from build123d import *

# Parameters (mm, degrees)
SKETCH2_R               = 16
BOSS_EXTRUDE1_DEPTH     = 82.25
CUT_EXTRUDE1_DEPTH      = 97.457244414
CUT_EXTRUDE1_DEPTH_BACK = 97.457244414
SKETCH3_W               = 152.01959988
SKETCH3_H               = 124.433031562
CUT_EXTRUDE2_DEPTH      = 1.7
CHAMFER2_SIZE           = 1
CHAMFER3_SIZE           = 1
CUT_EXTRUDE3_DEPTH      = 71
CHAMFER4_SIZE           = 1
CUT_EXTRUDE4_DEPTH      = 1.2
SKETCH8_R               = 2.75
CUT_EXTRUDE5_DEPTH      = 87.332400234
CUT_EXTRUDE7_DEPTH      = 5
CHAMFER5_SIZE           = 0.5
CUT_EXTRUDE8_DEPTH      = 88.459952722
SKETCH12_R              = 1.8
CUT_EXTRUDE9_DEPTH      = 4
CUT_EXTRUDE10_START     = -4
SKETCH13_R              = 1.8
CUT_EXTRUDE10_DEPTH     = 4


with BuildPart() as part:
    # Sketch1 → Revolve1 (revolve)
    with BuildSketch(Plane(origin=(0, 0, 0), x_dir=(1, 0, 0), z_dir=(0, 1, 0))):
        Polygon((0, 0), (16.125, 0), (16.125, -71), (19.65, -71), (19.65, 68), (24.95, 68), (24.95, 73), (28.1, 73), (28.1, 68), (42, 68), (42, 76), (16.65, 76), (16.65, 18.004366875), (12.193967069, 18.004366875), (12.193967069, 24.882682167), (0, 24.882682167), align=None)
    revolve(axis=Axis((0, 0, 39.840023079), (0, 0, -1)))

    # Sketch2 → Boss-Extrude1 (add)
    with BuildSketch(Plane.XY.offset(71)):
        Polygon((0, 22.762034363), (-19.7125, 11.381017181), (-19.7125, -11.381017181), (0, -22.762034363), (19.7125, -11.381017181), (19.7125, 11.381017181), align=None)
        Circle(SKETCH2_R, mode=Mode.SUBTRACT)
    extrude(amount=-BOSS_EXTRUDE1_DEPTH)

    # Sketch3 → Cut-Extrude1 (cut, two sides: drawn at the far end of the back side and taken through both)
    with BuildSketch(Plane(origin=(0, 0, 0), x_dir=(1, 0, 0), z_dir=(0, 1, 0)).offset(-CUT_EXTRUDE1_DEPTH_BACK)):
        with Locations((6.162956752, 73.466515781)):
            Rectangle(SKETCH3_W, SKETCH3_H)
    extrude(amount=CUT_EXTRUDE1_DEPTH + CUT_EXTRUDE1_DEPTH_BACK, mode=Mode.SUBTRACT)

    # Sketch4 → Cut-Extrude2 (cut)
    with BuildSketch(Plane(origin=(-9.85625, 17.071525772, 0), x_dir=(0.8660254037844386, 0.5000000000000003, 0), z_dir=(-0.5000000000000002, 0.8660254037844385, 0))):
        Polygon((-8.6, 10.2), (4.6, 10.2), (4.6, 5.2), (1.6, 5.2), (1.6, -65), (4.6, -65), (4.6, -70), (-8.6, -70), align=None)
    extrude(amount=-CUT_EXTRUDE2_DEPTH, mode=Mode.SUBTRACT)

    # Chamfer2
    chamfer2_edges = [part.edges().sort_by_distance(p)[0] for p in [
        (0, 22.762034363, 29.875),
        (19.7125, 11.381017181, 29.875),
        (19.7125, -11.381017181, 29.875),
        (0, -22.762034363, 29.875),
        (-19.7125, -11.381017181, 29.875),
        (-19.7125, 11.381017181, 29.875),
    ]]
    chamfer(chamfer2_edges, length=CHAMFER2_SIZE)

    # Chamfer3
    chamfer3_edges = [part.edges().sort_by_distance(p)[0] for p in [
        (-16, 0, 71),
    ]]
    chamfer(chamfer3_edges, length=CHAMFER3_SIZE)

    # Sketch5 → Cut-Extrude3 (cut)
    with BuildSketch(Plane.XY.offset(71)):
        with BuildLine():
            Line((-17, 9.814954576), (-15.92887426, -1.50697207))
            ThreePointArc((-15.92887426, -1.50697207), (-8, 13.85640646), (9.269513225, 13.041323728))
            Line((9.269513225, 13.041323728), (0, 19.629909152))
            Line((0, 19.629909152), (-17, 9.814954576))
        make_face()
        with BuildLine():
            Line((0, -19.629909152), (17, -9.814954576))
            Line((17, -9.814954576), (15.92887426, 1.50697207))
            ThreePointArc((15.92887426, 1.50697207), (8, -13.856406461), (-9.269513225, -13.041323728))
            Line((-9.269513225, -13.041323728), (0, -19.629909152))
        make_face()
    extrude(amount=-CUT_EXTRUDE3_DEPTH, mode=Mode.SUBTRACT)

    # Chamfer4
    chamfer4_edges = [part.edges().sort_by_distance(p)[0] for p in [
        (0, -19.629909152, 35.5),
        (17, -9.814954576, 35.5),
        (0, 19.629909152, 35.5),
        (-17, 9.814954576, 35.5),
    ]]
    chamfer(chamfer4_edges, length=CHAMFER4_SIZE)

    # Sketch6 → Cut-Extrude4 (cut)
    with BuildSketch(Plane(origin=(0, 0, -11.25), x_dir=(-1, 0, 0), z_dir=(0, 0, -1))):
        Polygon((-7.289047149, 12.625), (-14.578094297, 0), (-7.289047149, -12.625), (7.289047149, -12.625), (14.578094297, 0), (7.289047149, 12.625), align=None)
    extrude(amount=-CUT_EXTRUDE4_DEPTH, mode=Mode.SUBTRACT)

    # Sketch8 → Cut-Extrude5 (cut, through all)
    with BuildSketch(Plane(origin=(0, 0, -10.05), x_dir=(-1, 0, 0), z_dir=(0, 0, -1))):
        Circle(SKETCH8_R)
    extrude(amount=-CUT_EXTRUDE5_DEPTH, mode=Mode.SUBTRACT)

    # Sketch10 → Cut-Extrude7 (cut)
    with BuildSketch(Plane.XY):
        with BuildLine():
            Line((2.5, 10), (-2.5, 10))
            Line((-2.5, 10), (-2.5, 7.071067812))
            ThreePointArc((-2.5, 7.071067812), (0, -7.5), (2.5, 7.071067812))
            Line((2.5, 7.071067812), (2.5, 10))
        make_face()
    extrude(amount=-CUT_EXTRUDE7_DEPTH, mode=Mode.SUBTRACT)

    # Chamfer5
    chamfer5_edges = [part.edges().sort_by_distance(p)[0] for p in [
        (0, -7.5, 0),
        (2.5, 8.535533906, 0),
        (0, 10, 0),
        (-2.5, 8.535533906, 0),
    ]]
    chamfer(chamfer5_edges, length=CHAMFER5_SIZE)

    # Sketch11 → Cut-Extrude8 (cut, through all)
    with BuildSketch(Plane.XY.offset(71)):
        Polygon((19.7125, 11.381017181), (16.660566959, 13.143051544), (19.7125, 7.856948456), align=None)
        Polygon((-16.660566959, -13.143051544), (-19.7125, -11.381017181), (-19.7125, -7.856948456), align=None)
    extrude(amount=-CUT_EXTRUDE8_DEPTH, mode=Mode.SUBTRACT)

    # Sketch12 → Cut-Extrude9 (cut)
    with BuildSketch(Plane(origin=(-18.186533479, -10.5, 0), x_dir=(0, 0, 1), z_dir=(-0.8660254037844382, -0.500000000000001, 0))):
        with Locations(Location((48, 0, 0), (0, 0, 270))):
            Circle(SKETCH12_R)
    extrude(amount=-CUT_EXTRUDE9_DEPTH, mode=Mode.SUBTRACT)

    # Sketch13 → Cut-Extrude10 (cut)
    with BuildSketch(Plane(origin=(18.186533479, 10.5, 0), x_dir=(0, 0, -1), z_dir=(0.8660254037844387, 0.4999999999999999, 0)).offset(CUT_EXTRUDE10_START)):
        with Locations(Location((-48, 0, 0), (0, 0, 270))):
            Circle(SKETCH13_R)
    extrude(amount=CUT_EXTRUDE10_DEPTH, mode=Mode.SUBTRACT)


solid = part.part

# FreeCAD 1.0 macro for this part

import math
import FreeCAD as App
import Part
import Sketcher

V = App.Vector
Q = App.Units.Quantity


def edges_at(feature, points):
    """Names of the edges that pass closest to the given points."""
    edges = feature.Shape.Edges
    near = lambda p: min(range(len(edges)), key=lambda i: edges[i].distToShape(Part.Vertex(*p))[0])
    return sorted({f"Edge{near(p) + 1}" for p in points})

doc = App.newDocument("Part")
body = doc.addObject("PartDesign::Body", "Body")

sketch1 = doc.addObject("Sketcher::SketchObject", "Sketch")
body.addObject(sketch1)
sketch1.AttachmentSupport = (doc.XZ_Plane, [""])
sketch1.MapMode = "FlatFace"
sketch1.addGeometry([
    Part.LineSegment(V(0, 0, 0), V(16.1, 0, 0)),
    Part.LineSegment(V(16.1, 0, 0), V(16.1, 71, 0)),
    Part.LineSegment(V(16.1, 71, 0), V(19.6, 71, 0)),
    Part.LineSegment(V(19.6, 71, 0), V(19.6, -68, 0)),
    Part.LineSegment(V(19.6, -68, 0), V(24.9, -68, 0)),
    Part.LineSegment(V(24.9, -68, 0), V(24.9, -73, 0)),
    Part.LineSegment(V(24.9, -73, 0), V(28.1, -73, 0)),
    Part.LineSegment(V(28.1, -73, 0), V(28.1, -68, 0)),
    Part.LineSegment(V(28.1, -68, 0), V(42, -68, 0)),
    Part.LineSegment(V(42, -68, 0), V(42, -76, 0)),
    Part.LineSegment(V(42, -76, 0), V(16.6, -76, 0)),
    Part.LineSegment(V(16.6, -76, 0), V(16.6, -18, 0)),
    Part.LineSegment(V(16.6, -18, 0), V(12.2, -18, 0)),
    Part.LineSegment(V(12.2, -18, 0), V(12.2, -24.9, 0)),
    Part.LineSegment(V(12.2, -24.9, 0), V(0, -24.9, 0)),
    Part.LineSegment(V(0, -24.9, 0), V(0, 0, 0)),
], False)
sketch1.addConstraint([
    Sketcher.Constraint("Coincident", 0, 2, 1, 1),
    Sketcher.Constraint("Coincident", 1, 2, 2, 1),
    Sketcher.Constraint("Coincident", 2, 2, 3, 1),
    Sketcher.Constraint("Coincident", 3, 2, 4, 1),
    Sketcher.Constraint("Coincident", 4, 2, 5, 1),
    Sketcher.Constraint("Coincident", 5, 2, 6, 1),
    Sketcher.Constraint("Coincident", 6, 2, 7, 1),
    Sketcher.Constraint("Coincident", 7, 2, 8, 1),
    Sketcher.Constraint("Coincident", 8, 2, 9, 1),
    Sketcher.Constraint("Coincident", 9, 2, 10, 1),
    Sketcher.Constraint("Coincident", 10, 2, 11, 1),
    Sketcher.Constraint("Coincident", 11, 2, 12, 1),
    Sketcher.Constraint("Coincident", 12, 2, 13, 1),
    Sketcher.Constraint("Coincident", 13, 2, 14, 1),
    Sketcher.Constraint("Coincident", 14, 2, 15, 1),
    Sketcher.Constraint("Coincident", 15, 2, 0, 1),
    Sketcher.Constraint("Horizontal", 0),
    Sketcher.Constraint("Vertical", 1),
    Sketcher.Constraint("Horizontal", 2),
    Sketcher.Constraint("Vertical", 3),
    Sketcher.Constraint("Horizontal", 4),
    Sketcher.Constraint("Vertical", 5),
    Sketcher.Constraint("Horizontal", 6),
    Sketcher.Constraint("Vertical", 7),
    Sketcher.Constraint("Horizontal", 8),
    Sketcher.Constraint("Vertical", 9),
    Sketcher.Constraint("Horizontal", 10),
    Sketcher.Constraint("Vertical", 11),
    Sketcher.Constraint("Horizontal", 12),
    Sketcher.Constraint("Vertical", 13),
    Sketcher.Constraint("Horizontal", 14),
    Sketcher.Constraint("Vertical", 15),
    Sketcher.Constraint("Coincident", 15, 2, -1, 1),
    Sketcher.Constraint("Horizontal", 4, 2, 7, 2),
    Sketcher.Constraint("DistanceY", 1, 1, 1, 2, Q("71 mm")),
    Sketcher.Constraint("DistanceY", 3, 2, 3, 1, Q("139 mm")),
    Sketcher.Constraint("DistanceY", 5, 2, 5, 1, Q("5 mm")),
    Sketcher.Constraint("DistanceY", 9, 2, 9, 1, Q("8 mm")),
    Sketcher.Constraint("DistanceX", 4, 1, 4, 2, Q("5.3 mm")),
    Sketcher.Constraint("DistanceX", 8, 1, 8, 2, Q("13.9 mm")),
    Sketcher.Constraint("DistanceX", -1, 1, 8, 2, Q("42 mm")),
    Sketcher.Constraint("DistanceX", 10, 2, 3, 2, Q("3 mm")),
    Sketcher.Constraint("DistanceX", 6, 1, 6, 2, Q("3.15 mm")),
    Sketcher.Constraint("DistanceX", 0, 1, 0, 2, Q("16.125 mm")),
    Sketcher.Constraint("DistanceX", 12, 2, 12, 1, Q("4.456033 mm")),
    Sketcher.Constraint("DistanceY", 11, 1, 11, 2, Q("57.995633 mm")),
    Sketcher.Constraint("DistanceY", 13, 2, 13, 1, Q("6.878315 mm")),
])
revolution = doc.addObject("PartDesign::Revolution", "Revolution")
body.addObject(revolution)
revolution.Profile = sketch1
revolution.ReferenceAxis = (sketch1, ["V_Axis"])
revolution.Angle = 360

sketch2 = doc.addObject("Sketcher::SketchObject", "Sketch001")
body.addObject(sketch2)
sketch2.AttachmentSupport = (doc.XY_Plane, [""])
sketch2.MapMode = "FlatFace"
sketch2.AttachmentOffset = App.Placement(V(0, 0, 71), App.Rotation())
sketch2.addGeometry([
    Part.LineSegment(V(0, 23, 0), V(-20, 11, 0)),
    Part.LineSegment(V(-20, 11, 0), V(-20, -11, 0)),
    Part.LineSegment(V(-20, -11, 0), V(0, -23, 0)),
    Part.LineSegment(V(0, -23, 0), V(20, -11, 0)),
    Part.LineSegment(V(20, -11, 0), V(20, 11, 0)),
    Part.LineSegment(V(20, 11, 0), V(0, 23, 0)),
    Part.Circle(V(0, 0, 0), V(0, 0, 1), 16),
], False)
sketch2.addConstraint([
    Sketcher.Constraint("Coincident", 0, 2, 1, 1),
    Sketcher.Constraint("Coincident", 1, 2, 2, 1),
    Sketcher.Constraint("Coincident", 2, 2, 3, 1),
    Sketcher.Constraint("Coincident", 3, 2, 4, 1),
    Sketcher.Constraint("Coincident", 4, 2, 5, 1),
    Sketcher.Constraint("Coincident", 5, 2, 0, 1),
    Sketcher.Constraint("Vertical", 1),
    Sketcher.Constraint("Vertical", 4),
    Sketcher.Constraint("Coincident", 6, 3, -1, 1),
    Sketcher.Constraint("Symmetric", 0, 2, 3, 2, -1, 1),
    Sketcher.Constraint("Symmetric", 2, 2, 5, 2, -1, 1),
    Sketcher.Constraint("PointOnObject", 2, 2, -2),
    Sketcher.Constraint("Parallel", 2, 5),
    Sketcher.Constraint("Horizontal", 1, 2, 3, 2),
    Sketcher.Constraint("Diameter", 6, Q("32 mm")),
    Sketcher.Constraint("Angle", 0, Q("-150 deg")),
    Sketcher.Constraint("DistanceX", 1, 2, 3, 2, Q("39.425 mm")),
    Sketcher.Constraint("DistanceY", 1, 2, 1, 1, Q("22.762034 mm")),
])
pad1 = doc.addObject("PartDesign::Pad", "Pad")
body.addObject(pad1)
pad1.Profile = sketch2
pad1.Length = 82.25
pad1.Reversed = True

sketch3 = doc.addObject("Sketcher::SketchObject", "Sketch002")
body.addObject(sketch3)
sketch3.AttachmentSupport = (doc.XZ_Plane, [""])
sketch3.MapMode = "FlatFace"
sketch3.addGeometry([
    Part.LineSegment(V(-70, -136, 0), V(-70, -11, 0)),
    Part.LineSegment(V(-70, -11, 0), V(82, -11, 0)),
    Part.LineSegment(V(82, -11, 0), V(82, -136, 0)),
    Part.LineSegment(V(82, -136, 0), V(-70, -136, 0)),
], False)
sketch3.addConstraint([
    Sketcher.Constraint("Coincident", 0, 2, 1, 1),
    Sketcher.Constraint("Coincident", 1, 2, 2, 1),
    Sketcher.Constraint("Coincident", 2, 2, 3, 1),
    Sketcher.Constraint("Coincident", 3, 2, 0, 1),
    Sketcher.Constraint("Vertical", 0),
    Sketcher.Constraint("Horizontal", 1),
    Sketcher.Constraint("Vertical", 2),
    Sketcher.Constraint("Horizontal", 3),
    Sketcher.Constraint("DistanceY", 0, 2, -1, 1, Q("11.25 mm")),
    Sketcher.Constraint("DistanceX", 1, 1, 1, 2, Q("152.0196 mm")),
    Sketcher.Constraint("DistanceY", 0, 1, 0, 2, Q("124.433032 mm")),
    Sketcher.Constraint("DistanceX", 0, 2, -1, 1, Q("69.846843 mm")),
])
pocket1 = doc.addObject("PartDesign::Pocket", "Pocket")
body.addObject(pocket1)
pocket1.Profile = sketch3
pocket1.Type = "ThroughAll"
pocket1.Midplane = True

sketch4 = doc.addObject("Sketcher::SketchObject", "Sketch003")
body.addObject(sketch4)
sketch4.Placement = App.Placement(V(-9.85625, 17.071526, 0), App.Rotation(V(0.866025404, 0.5, 0), V(0, 0, -1), V(-0.5, 0.866025404, 0), "ZXY"))
sketch4.addGeometry([
    Part.LineSegment(V(4.6, 10.2, 0), V(-8.6, 10.2, 0)),
    Part.LineSegment(V(-8.6, 10.2, 0), V(-8.6, -70, 0)),
    Part.LineSegment(V(-8.6, -70, 0), V(4.6, -70, 0)),
    Part.LineSegment(V(4.6, -70, 0), V(4.6, -65, 0)),
    Part.LineSegment(V(4.6, -65, 0), V(1.6, -65, 0)),
    Part.LineSegment(V(1.6, -65, 0), V(1.6, 5.2, 0)),
    Part.LineSegment(V(1.6, 5.2, 0), V(4.6, 5.2, 0)),
    Part.LineSegment(V(4.6, 5.2, 0), V(4.6, 10.2, 0)),
], False)
sketch4.addConstraint([
    Sketcher.Constraint("Coincident", 0, 2, 1, 1),
    Sketcher.Constraint("Coincident", 1, 2, 2, 1),
    Sketcher.Constraint("Coincident", 2, 2, 3, 1),
    Sketcher.Constraint("Coincident", 3, 2, 4, 1),
    Sketcher.Constraint("Coincident", 4, 2, 5, 1),
    Sketcher.Constraint("Coincident", 5, 2, 6, 1),
    Sketcher.Constraint("Coincident", 6, 2, 7, 1),
    Sketcher.Constraint("Coincident", 7, 2, 0, 1),
    Sketcher.Constraint("Horizontal", 0),
    Sketcher.Constraint("Vertical", 1),
    Sketcher.Constraint("Horizontal", 2),
    Sketcher.Constraint("Vertical", 3),
    Sketcher.Constraint("Horizontal", 4),
    Sketcher.Constraint("Vertical", 5),
    Sketcher.Constraint("Horizontal", 6),
    Sketcher.Constraint("Vertical", 7),
    Sketcher.Constraint("Vertical", 3, 2, 6, 2),
    Sketcher.Constraint("Equal", 3, 7),
    Sketcher.Constraint("DistanceX", 4, 2, 4, 1, Q("3 mm")),
    Sketcher.Constraint("DistanceY", 3, 1, 3, 2, Q("5 mm")),
    Sketcher.Constraint("DistanceX", 0, 2, 0, 1, Q("13.2 mm")),
    Sketcher.Constraint("DistanceY", 1, 2, 1, 1, Q("80.2 mm")),
    Sketcher.Constraint("DistanceY", 1, 2, -1, 1, Q("70 mm")),
    Sketcher.Constraint("DistanceX", 0, 2, -1, 1, Q("8.6 mm")),
])
pocket2 = doc.addObject("PartDesign::Pocket", "Pocket001")
body.addObject(pocket2)
pocket2.Profile = sketch4
pocket2.Length = 1.7
doc.recompute()

chamfer = doc.addObject("PartDesign::Chamfer", "Chamfer")
body.addObject(chamfer)
chamfer.Base = (pocket2, edges_at(pocket2, [
    (0, 22.762, 29.875),
    (19.712, 11.381, 29.875),
    (19.712, -11.381, 29.875),
    (0, -22.762, 29.875),
    (-19.712, -11.381, 29.875),
    (-19.712, 11.381, 29.875),
]))
chamfer.Size = 1
doc.recompute()

chamfer2 = doc.addObject("PartDesign::Chamfer", "Chamfer001")
body.addObject(chamfer2)
chamfer2.Base = (chamfer, edges_at(chamfer, [(-16, 0, 71)]))
chamfer2.Size = 1

sketch5 = doc.addObject("Sketcher::SketchObject", "Sketch004")
body.addObject(sketch5)
sketch5.AttachmentSupport = (doc.XY_Plane, [""])
sketch5.MapMode = "FlatFace"
sketch5.AttachmentOffset = App.Placement(V(0, 0, 71), App.Rotation())
sketch5.addGeometry([
    Part.LineSegment(V(-17, 10, 0), V(-16, -2, 0)),
    Part.ArcOfCircle(Part.Circle(V(0, 0, 0), V(0, 0, 1), 16), math.radians(55), math.radians(185)),
    Part.LineSegment(V(9, 13, 0), V(0, 20, 0)),
    Part.LineSegment(V(0, 20, 0), V(-17, 10, 0)),
    Part.LineSegment(V(0, -20, 0), V(17, -10, 0)),
    Part.LineSegment(V(17, -10, 0), V(16, 2, 0)),
    Part.ArcOfCircle(Part.Circle(V(0, 0, 0), V(0, 0, 1), 16), math.radians(-125), math.radians(5)),
    Part.LineSegment(V(-9, -13, 0), V(0, -20, 0)),
], False)
sketch5.addConstraint([
    Sketcher.Constraint("Tangent", 0, 2, 1, 2),
    Sketcher.Constraint("Tangent", 1, 1, 2, 1),
    Sketcher.Constraint("Coincident", 2, 2, 3, 1),
    Sketcher.Constraint("Coincident", 3, 2, 0, 1),
    Sketcher.Constraint("Coincident", 4, 2, 5, 1),
    Sketcher.Constraint("Tangent", 5, 2, 6, 2),
    Sketcher.Constraint("Tangent", 6, 1, 7, 1),
    Sketcher.Constraint("Coincident", 7, 2, 4, 1),
    Sketcher.Constraint("Coincident", 1, 3, -1, 1),
    Sketcher.Constraint("Coincident", 6, 3, -1, 1),
    Sketcher.Constraint("Equal", 1, 6),
    Sketcher.Constraint("Symmetric", 3, 2, 4, 2, -1, 1),
    Sketcher.Constraint("Symmetric", 2, 2, 7, 2, -1, 1),
    Sketcher.Constraint("PointOnObject", 2, 2, -2),
    Sketcher.Constraint("Equal", 0, 2),
    Sketcher.Constraint("Radius", 1, Q("16 mm")),
    Sketcher.Constraint("Angle", 3, Q("-150 deg")),
    Sketcher.Constraint("DistanceX", 3, 2, -1, 1, Q("17 mm")),
])
pocket3 = doc.addObject("PartDesign::Pocket", "Pocket002")
body.addObject(pocket3)
pocket3.Profile = sketch5
pocket3.Length = 71
doc.recompute()

chamfer3 = doc.addObject("PartDesign::Chamfer", "Chamfer002")
body.addObject(chamfer3)
chamfer3.Base = (pocket3, edges_at(pocket3, [
    (0, -19.63, 35.5),
    (17, -9.815, 35.5),
    (0, 19.63, 35.5),
    (-17, 9.815, 35.5),
]))
chamfer3.Size = 1

sketch6 = doc.addObject("Sketcher::SketchObject", "Sketch005")
body.addObject(sketch6)
sketch6.AttachmentSupport = (doc.XY_Plane, [""])
sketch6.MapMode = "FlatFace"
sketch6.AttachmentOffset = App.Placement(V(0, 0, -11.25), App.Rotation())
sketch6.addGeometry([
    Part.LineSegment(V(7, 13, 0), V(15, 0, 0)),
    Part.LineSegment(V(15, 0, 0), V(7, -13, 0)),
    Part.LineSegment(V(7, -13, 0), V(-7, -13, 0)),
    Part.LineSegment(V(-7, -13, 0), V(-15, 0, 0)),
    Part.LineSegment(V(-15, 0, 0), V(-7, 13, 0)),
    Part.LineSegment(V(-7, 13, 0), V(7, 13, 0)),
], False)
sketch6.addConstraint([
    Sketcher.Constraint("Coincident", 0, 2, 1, 1),
    Sketcher.Constraint("Coincident", 1, 2, 2, 1),
    Sketcher.Constraint("Coincident", 2, 2, 3, 1),
    Sketcher.Constraint("Coincident", 3, 2, 4, 1),
    Sketcher.Constraint("Coincident", 4, 2, 5, 1),
    Sketcher.Constraint("Coincident", 5, 2, 0, 1),
    Sketcher.Constraint("Horizontal", 2),
    Sketcher.Constraint("Horizontal", 5),
    Sketcher.Constraint("Symmetric", 0, 2, 3, 2, -1, 1),
    Sketcher.Constraint("Symmetric", 1, 2, 4, 2, -1, 1),
    Sketcher.Constraint("PointOnObject", 0, 2, -1),
    Sketcher.Constraint("Parallel", 0, 3),
    Sketcher.Constraint("Vertical", 2, 2, 4, 2),
    Sketcher.Constraint("Angle", 0, Q("-60 deg")),
    Sketcher.Constraint("DistanceY", 2, 2, 4, 2, Q("25.25 mm")),
    Sketcher.Constraint("DistanceX", 2, 2, 2, 1, Q("14.578094 mm")),
])
pocket4 = doc.addObject("PartDesign::Pocket", "Pocket003")
body.addObject(pocket4)
pocket4.Profile = sketch6
pocket4.Length = 1.2
pocket4.Reversed = True

sketch7 = doc.addObject("Sketcher::SketchObject", "Sketch006")
body.addObject(sketch7)
sketch7.AttachmentSupport = (doc.XY_Plane, [""])
sketch7.MapMode = "FlatFace"
sketch7.AttachmentOffset = App.Placement(V(0, 0, -10.05), App.Rotation())
sketch7.addGeometry(Part.Circle(V(0, 0, 0), V(0, 0, 1), 2.8), False)
sketch7.addConstraint([
    Sketcher.Constraint("Coincident", 0, 3, -1, 1),
    Sketcher.Constraint("Diameter", 0, Q("5.5 mm")),
])
pocket5 = doc.addObject("PartDesign::Pocket", "Pocket004")
body.addObject(pocket5)
pocket5.Profile = sketch7
pocket5.Type = "ThroughAll"
pocket5.Reversed = True

sketch8 = doc.addObject("Sketcher::SketchObject", "Sketch007")
body.addObject(sketch8)
sketch8.AttachmentSupport = (doc.XY_Plane, [""])
sketch8.MapMode = "FlatFace"
sketch8.addGeometry([
    Part.LineSegment(V(2.5, 10, 0), V(-2.5, 10, 0)),
    Part.LineSegment(V(-2.5, 10, 0), V(-2.5, 7.1, 0)),
    Part.ArcOfCircle(Part.Circle(V(0, 0, 0), V(0, 0, 1), 7.5), math.radians(109), math.radians(431)),
    Part.LineSegment(V(2.5, 7.1, 0), V(2.5, 10, 0)),
], False)
sketch8.addConstraint([
    Sketcher.Constraint("Coincident", 0, 2, 1, 1),
    Sketcher.Constraint("Coincident", 1, 2, 2, 1),
    Sketcher.Constraint("Coincident", 2, 2, 3, 1),
    Sketcher.Constraint("Coincident", 3, 2, 0, 1),
    Sketcher.Constraint("Horizontal", 0),
    Sketcher.Constraint("Vertical", 1),
    Sketcher.Constraint("Vertical", 3),
    Sketcher.Constraint("Coincident", 2, 3, -1, 1),
    Sketcher.Constraint("Horizontal", 1, 2, 2, 2),
    Sketcher.Constraint("Radius", 2, Q("7.5 mm")),
    Sketcher.Constraint("DistanceX", 0, 2, 0, 1, Q("5 mm")),
    Sketcher.Constraint("DistanceY", -1, 1, 0, 2, Q("10 mm")),
])
pocket6 = doc.addObject("PartDesign::Pocket", "Pocket005")
body.addObject(pocket6)
pocket6.Profile = sketch8
pocket6.Length = 5
doc.recompute()

chamfer4 = doc.addObject("PartDesign::Chamfer", "Chamfer003")
body.addObject(chamfer4)
chamfer4.Base = (pocket6, edges_at(pocket6, [
    (0, -7.5, 0),
    (2.5, 8.536, 0),
    (0, 10, 0),
    (-2.5, 8.536, 0),
]))
chamfer4.Size = 0.5

sketch9 = doc.addObject("Sketcher::SketchObject", "Sketch008")
body.addObject(sketch9)
sketch9.AttachmentSupport = (doc.XY_Plane, [""])
sketch9.MapMode = "FlatFace"
sketch9.AttachmentOffset = App.Placement(V(0, 0, 71), App.Rotation())
sketch9.addGeometry([
    Part.LineSegment(V(19.7, 11.4, 0), V(16.7, 13.1, 0)),
    Part.LineSegment(V(16.7, 13.1, 0), V(19.7, 7.9, 0)),
    Part.LineSegment(V(19.7, 7.9, 0), V(19.7, 11.4, 0)),
    Part.LineSegment(V(-19.7, -11.4, 0), V(-16.7, -13.1, 0)),
    Part.LineSegment(V(-16.7, -13.1, 0), V(-19.7, -7.9, 0)),
    Part.LineSegment(V(-19.7, -7.9, 0), V(-19.7, -11.4, 0)),
], False)
sketch9.addConstraint([
    Sketcher.Constraint("Coincident", 0, 2, 1, 1),
    Sketcher.Constraint("Coincident", 1, 2, 2, 1),
    Sketcher.Constraint("Coincident", 2, 2, 0, 1),
    Sketcher.Constraint("Coincident", 3, 2, 4, 1),
    Sketcher.Constraint("Coincident", 4, 2, 5, 1),
    Sketcher.Constraint("Coincident", 5, 2, 3, 1),
    Sketcher.Constraint("Vertical", 2),
    Sketcher.Constraint("Vertical", 5),
    Sketcher.Constraint("Symmetric", 0, 2, 3, 2, -1, 1),
    Sketcher.Constraint("Symmetric", 1, 2, 4, 2, -1, 1),
    Sketcher.Constraint("Parallel", 0, 3),
    Sketcher.Constraint("Angle", 0, Q("150 deg")),
    Sketcher.Constraint("Angle", 1, Q("-60 deg")),
    Sketcher.Constraint("DistanceY", 3, 2, 1, 2, Q("21 mm")),
    Sketcher.Constraint("DistanceX", 4, 2, 1, 2, Q("39.425 mm")),
    Sketcher.Constraint("DistanceY", 2, 1, 2, 2, Q("3.524069 mm")),
])
pocket7 = doc.addObject("PartDesign::Pocket", "Pocket006")
body.addObject(pocket7)
pocket7.Profile = sketch9
pocket7.Type = "ThroughAll"

sketch10 = doc.addObject("Sketcher::SketchObject", "Sketch009")
body.addObject(sketch10)
sketch10.Placement = App.Placement(V(-18.186533, -10.5, 0), App.Rotation(V(0, 0, 1), V(-0.5, 0.866025404, 0), V(-0.866025404, -0.5, 0), "ZXY"))
sketch10.addGeometry(Part.Circle(V(48, 0, 0), V(0, 0, 1), 1.8), False)
sketch10.addConstraint([
    Sketcher.Constraint("PointOnObject", 0, 3, -1),
    Sketcher.Constraint("Diameter", 0, Q("3.6 mm")),
    Sketcher.Constraint("DistanceX", -1, 1, 0, 3, Q("48 mm")),
])
pocket8 = doc.addObject("PartDesign::Pocket", "Pocket007")
body.addObject(pocket8)
pocket8.Profile = sketch10
pocket8.Length = 4

sketch11 = doc.addObject("Sketcher::SketchObject", "Sketch010")
body.addObject(sketch11)
sketch11.Placement = App.Placement(V(14.722432, 8.5, 0), App.Rotation(V(0, 0, -1), V(-0.5, 0.866025404, 0), V(0.866025404, 0.5, 0), "ZXY"))
sketch11.addGeometry(Part.Circle(V(-48, 0, 0), V(0, 0, 1), 1.8), False)
sketch11.addConstraint([
    Sketcher.Constraint("PointOnObject", 0, 3, -1),
    Sketcher.Constraint("Diameter", 0, Q("3.6 mm")),
    Sketcher.Constraint("DistanceX", 0, 3, -1, 1, Q("48 mm")),
])
pocket9 = doc.addObject("PartDesign::Pocket", "Pocket008")
body.addObject(pocket9)
pocket9.Profile = sketch11
pocket9.Length = 4
pocket9.Reversed = True

doc.recompute()
